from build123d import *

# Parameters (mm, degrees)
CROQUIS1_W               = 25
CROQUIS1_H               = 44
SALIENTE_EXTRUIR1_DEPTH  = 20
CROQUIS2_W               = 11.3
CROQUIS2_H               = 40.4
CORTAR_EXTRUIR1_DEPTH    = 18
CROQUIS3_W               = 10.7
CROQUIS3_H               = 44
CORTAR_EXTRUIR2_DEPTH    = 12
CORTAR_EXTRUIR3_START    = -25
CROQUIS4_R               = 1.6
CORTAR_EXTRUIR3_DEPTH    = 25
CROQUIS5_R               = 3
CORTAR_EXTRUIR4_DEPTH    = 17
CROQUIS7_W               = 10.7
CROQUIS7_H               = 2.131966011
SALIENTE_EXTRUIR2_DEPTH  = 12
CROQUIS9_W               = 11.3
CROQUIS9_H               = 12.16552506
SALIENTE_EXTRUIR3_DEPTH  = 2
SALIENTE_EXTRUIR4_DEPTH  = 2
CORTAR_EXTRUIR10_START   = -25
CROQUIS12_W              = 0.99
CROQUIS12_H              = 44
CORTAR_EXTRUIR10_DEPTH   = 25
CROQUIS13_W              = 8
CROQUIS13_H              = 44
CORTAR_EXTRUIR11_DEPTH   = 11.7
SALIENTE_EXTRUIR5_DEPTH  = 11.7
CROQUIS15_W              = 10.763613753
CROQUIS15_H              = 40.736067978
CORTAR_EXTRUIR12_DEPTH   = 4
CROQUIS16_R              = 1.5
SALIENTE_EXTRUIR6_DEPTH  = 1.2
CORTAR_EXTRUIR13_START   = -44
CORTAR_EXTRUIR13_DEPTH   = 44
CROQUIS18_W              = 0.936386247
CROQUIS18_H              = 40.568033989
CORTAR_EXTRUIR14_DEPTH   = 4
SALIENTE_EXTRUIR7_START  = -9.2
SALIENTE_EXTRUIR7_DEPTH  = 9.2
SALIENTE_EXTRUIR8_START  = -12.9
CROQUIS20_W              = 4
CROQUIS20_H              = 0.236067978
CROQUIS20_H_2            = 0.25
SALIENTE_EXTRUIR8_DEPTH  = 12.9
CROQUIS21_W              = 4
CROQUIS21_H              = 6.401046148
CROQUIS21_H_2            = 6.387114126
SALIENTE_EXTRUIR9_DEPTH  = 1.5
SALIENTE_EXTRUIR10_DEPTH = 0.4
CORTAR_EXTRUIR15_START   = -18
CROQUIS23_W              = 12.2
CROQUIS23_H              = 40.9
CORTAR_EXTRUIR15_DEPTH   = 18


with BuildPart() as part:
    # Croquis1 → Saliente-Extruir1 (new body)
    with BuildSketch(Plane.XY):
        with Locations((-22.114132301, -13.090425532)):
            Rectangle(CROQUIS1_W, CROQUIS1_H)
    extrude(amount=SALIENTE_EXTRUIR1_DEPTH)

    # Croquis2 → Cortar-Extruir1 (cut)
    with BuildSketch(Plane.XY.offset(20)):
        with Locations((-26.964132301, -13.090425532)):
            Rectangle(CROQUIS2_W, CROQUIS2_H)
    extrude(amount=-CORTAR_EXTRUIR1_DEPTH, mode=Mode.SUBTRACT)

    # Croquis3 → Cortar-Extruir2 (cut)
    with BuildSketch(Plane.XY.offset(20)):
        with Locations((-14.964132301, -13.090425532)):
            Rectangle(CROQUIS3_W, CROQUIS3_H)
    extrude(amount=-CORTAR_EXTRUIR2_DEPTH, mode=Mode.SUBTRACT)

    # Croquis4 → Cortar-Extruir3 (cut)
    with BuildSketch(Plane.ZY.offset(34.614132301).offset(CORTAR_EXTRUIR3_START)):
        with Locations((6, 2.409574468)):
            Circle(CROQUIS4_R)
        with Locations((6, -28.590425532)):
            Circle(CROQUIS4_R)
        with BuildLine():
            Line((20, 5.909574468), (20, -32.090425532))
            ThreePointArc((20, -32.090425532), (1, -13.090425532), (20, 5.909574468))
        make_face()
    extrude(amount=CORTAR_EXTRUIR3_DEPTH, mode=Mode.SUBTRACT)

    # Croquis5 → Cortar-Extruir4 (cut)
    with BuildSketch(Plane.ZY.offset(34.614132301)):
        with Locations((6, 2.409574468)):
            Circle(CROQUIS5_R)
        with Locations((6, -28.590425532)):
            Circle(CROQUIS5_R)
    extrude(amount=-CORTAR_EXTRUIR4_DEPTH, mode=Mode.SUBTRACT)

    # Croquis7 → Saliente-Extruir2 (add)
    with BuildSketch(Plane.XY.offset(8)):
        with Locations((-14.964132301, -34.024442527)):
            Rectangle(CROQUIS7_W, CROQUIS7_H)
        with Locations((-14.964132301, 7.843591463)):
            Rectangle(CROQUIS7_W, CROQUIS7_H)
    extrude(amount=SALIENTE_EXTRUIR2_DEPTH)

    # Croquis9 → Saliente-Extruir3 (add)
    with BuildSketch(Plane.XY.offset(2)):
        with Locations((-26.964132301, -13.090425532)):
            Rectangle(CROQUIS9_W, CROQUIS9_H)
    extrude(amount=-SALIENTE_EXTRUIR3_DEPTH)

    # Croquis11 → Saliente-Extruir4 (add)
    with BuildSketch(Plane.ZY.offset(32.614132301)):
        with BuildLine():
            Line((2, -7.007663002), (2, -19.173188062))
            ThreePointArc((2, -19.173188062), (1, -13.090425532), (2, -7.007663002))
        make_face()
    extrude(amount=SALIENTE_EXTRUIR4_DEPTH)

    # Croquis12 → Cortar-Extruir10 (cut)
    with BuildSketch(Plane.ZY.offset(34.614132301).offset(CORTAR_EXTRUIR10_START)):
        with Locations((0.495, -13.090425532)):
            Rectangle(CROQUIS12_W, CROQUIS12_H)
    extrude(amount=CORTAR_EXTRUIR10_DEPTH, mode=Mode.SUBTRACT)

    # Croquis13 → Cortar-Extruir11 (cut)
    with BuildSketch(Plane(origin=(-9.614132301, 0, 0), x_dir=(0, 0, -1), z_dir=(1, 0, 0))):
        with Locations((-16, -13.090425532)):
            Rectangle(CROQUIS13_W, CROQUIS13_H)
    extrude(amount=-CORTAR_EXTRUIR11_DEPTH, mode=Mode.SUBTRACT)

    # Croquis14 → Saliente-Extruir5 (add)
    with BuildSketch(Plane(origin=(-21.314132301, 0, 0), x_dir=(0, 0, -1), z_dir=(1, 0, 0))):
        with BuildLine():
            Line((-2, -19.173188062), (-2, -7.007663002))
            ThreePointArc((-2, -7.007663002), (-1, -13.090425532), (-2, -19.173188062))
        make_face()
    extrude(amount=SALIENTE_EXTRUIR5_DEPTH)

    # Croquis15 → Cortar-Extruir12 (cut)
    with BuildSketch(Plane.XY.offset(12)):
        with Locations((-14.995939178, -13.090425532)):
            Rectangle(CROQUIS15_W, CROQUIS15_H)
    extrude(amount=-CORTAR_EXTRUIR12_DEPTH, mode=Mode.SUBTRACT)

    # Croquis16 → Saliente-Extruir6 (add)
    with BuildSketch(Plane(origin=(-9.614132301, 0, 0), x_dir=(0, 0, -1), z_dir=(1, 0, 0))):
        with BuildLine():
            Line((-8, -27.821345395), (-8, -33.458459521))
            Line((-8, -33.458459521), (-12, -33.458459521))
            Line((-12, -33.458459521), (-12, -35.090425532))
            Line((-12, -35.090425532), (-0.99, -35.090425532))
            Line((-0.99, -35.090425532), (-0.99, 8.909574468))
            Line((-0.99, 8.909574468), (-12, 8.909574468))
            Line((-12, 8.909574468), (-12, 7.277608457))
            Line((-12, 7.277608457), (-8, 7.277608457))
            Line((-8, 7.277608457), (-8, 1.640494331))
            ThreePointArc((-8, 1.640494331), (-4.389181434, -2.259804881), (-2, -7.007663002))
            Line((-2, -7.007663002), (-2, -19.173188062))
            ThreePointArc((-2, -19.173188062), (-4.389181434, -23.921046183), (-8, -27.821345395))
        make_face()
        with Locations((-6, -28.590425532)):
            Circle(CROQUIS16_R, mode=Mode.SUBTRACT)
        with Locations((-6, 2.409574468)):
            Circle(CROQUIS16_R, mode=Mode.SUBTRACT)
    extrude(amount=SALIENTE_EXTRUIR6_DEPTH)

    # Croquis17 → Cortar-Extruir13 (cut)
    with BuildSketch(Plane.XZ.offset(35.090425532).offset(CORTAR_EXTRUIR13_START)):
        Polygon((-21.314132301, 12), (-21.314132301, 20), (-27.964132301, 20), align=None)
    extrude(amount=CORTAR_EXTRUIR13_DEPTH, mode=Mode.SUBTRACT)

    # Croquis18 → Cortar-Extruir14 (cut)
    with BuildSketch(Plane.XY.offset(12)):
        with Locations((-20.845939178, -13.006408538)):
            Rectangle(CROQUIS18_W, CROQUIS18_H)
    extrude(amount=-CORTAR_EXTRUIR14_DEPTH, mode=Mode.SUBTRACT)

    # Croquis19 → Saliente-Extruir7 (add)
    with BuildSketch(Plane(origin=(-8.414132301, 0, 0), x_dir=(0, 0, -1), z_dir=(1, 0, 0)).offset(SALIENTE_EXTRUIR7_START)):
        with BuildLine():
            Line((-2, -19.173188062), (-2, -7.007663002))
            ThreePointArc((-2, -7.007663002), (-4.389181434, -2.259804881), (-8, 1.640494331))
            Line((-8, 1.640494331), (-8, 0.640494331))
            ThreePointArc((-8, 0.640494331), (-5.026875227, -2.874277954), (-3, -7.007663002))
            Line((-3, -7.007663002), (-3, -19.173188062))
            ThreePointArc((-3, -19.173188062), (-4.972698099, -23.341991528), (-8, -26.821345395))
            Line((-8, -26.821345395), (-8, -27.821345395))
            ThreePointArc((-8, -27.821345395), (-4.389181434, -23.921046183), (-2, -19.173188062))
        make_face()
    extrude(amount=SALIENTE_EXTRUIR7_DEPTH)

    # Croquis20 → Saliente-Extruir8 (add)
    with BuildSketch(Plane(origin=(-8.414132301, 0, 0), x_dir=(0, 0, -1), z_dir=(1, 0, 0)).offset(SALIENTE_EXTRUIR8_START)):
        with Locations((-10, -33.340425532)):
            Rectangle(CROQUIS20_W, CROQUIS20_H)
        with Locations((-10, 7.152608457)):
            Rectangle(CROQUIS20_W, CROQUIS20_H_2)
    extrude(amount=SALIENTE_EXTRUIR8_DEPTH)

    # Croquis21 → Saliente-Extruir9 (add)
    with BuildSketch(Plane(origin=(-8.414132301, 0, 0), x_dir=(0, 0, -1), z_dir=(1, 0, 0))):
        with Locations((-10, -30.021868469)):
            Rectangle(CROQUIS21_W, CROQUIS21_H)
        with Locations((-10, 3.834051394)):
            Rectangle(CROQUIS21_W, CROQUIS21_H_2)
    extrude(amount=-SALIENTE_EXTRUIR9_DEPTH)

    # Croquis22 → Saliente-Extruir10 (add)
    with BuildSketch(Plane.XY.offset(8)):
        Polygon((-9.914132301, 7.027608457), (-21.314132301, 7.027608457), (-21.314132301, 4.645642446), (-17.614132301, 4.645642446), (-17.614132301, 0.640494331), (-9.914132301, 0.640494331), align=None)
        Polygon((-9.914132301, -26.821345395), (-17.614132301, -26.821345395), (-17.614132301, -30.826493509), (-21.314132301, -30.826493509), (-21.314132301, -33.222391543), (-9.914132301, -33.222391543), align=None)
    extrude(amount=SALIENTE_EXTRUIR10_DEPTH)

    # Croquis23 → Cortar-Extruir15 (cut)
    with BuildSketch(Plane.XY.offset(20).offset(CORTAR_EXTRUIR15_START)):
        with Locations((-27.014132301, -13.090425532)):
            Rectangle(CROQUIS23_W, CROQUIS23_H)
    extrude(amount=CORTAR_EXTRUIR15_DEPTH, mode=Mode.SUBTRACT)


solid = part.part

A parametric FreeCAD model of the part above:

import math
import FreeCAD as App
import Part
import Sketcher
Q = App.Units.Quantity

doc = App.newDocument("Part")
body = doc.addObject("PartDesign::Body", "Body")

sketch1 = doc.addObject("Sketcher::SketchObject", "Sketch")
body.addObject(sketch1)
sketch1.AttachmentSupport = (doc.XY_Plane, [""])
sketch1.MapMode = "FlatFace"
sketch1.addGeometry(Part.LineSegment(App.Vector(-34.614132, 8.909574, 0), App.Vector(-34.614132, -35.090426, 0)), False)
sketch1.addGeometry(Part.LineSegment(App.Vector(-34.614132, -35.090426, 0), App.Vector(-9.614132, -35.090426, 0)), False)
sketch1.addGeometry(Part.LineSegment(App.Vector(-9.614132, -35.090426, 0), App.Vector(-9.614132, 8.909574, 0)), False)
sketch1.addGeometry(Part.LineSegment(App.Vector(-9.614132, 8.909574, 0), App.Vector(-34.614132, 8.909574, 0)), False)
sketch1.addConstraint(Sketcher.Constraint("Coincident", 0, 2, 1, 1))
sketch1.addConstraint(Sketcher.Constraint("Coincident", 1, 2, 2, 1))
sketch1.addConstraint(Sketcher.Constraint("Coincident", 2, 2, 3, 1))
sketch1.addConstraint(Sketcher.Constraint("Coincident", 3, 2, 0, 1))
sketch1.addConstraint(Sketcher.Constraint("Vertical", 0))
sketch1.addConstraint(Sketcher.Constraint("Horizontal", 1))
sketch1.addConstraint(Sketcher.Constraint("Vertical", 2))
sketch1.addConstraint(Sketcher.Constraint("Horizontal", 3))
sketch1.addConstraint(Sketcher.Constraint("DistanceX", 1, 1, 1, 2, Q("25 mm")))
sketch1.addConstraint(Sketcher.Constraint("DistanceY", 0, 2, 0, 1, Q("44 mm")))
sketch1.addConstraint(Sketcher.Constraint("DistanceX", 0, 2, -1, 1, Q("34.614132 mm")))
sketch1.addConstraint(Sketcher.Constraint("DistanceY", 0, 2, -1, 1, Q("35.090426 mm")))
pad1 = doc.addObject("PartDesign::Pad", "Pad")
body.addObject(pad1)
pad1.Profile = sketch1
pad1.Length = 20

sketch2 = doc.addObject("Sketcher::SketchObject", "Sketch001")
body.addObject(sketch2)
sketch2.AttachmentSupport = (doc.XY_Plane, [""])
sketch2.MapMode = "FlatFace"
sketch2.AttachmentOffset = App.Placement(App.Vector(0, 0, 20), App.Rotation())
sketch2.addGeometry(Part.LineSegment(App.Vector(-32.614132, 7.109574, 0), App.Vector(-32.614132, -33.290426, 0)), False)
sketch2.addGeometry(Part.LineSegment(App.Vector(-32.614132, -33.290426, 0), App.Vector(-21.314132, -33.290426, 0)), False)
sketch2.addGeometry(Part.LineSegment(App.Vector(-21.314132, -33.290426, 0), App.Vector(-21.314132, 7.109574, 0)), False)
sketch2.addGeometry(Part.LineSegment(App.Vector(-21.314132, 7.109574, 0), App.Vector(-32.614132, 7.109574, 0)), False)
sketch2.addConstraint(Sketcher.Constraint("Coincident", 0, 2, 1, 1))
sketch2.addConstraint(Sketcher.Constraint("Coincident", 1, 2, 2, 1))
sketch2.addConstraint(Sketcher.Constraint("Coincident", 2, 2, 3, 1))
sketch2.addConstraint(Sketcher.Constraint("Coincident", 3, 2, 0, 1))
sketch2.addConstraint(Sketcher.Constraint("Vertical", 0))
sketch2.addConstraint(Sketcher.Constraint("Horizontal", 1))
sketch2.addConstraint(Sketcher.Constraint("Vertical", 2))
sketch2.addConstraint(Sketcher.Constraint("Horizontal", 3))
sketch2.addConstraint(Sketcher.Constraint("DistanceX", 1, 1, 1, 2, Q("11.3 mm")))
sketch2.addConstraint(Sketcher.Constraint("DistanceY", 0, 2, 0, 1, Q("40.4 mm")))
sketch2.addConstraint(Sketcher.Constraint("DistanceX", 0, 2, -1, 1, Q("32.614132 mm")))
sketch2.addConstraint(Sketcher.Constraint("DistanceY", 0, 2, -1, 1, Q("33.290426 mm")))
pocket1 = doc.addObject("PartDesign::Pocket", "Pocket")
body.addObject(pocket1)
pocket1.Profile = sketch2
pocket1.Length = 18

sketch3 = doc.addObject("Sketcher::SketchObject", "Sketch002")
body.addObject(sketch3)
sketch3.AttachmentSupport = (doc.XY_Plane, [""])
sketch3.MapMode = "FlatFace"
sketch3.AttachmentOffset = App.Placement(App.Vector(0, 0, 20), App.Rotation())
sketch3.addGeometry(Part.LineSegment(App.Vector(-20.314132, 8.909574, 0), App.Vector(-20.314132, -35.090426, 0)), False)
sketch3.addGeometry(Part.LineSegment(App.Vector(-20.314132, -35.090426, 0), App.Vector(-9.614132, -35.090426, 0)), False)
sketch3.addGeometry(Part.LineSegment(App.Vector(-9.614132, -35.090426, 0), App.Vector(-9.614132, 8.909574, 0)), False)
sketch3.addGeometry(Part.LineSegment(App.Vector(-9.614132, 8.909574, 0), App.Vector(-20.314132, 8.909574, 0)), False)
sketch3.addConstraint(Sketcher.Constraint("Coincident", 0, 2, 1, 1))
sketch3.addConstraint(Sketcher.Constraint("Coincident", 1, 2, 2, 1))
sketch3.addConstraint(Sketcher.Constraint("Coincident", 2, 2, 3, 1))
sketch3.addConstraint(Sketcher.Constraint("Coincident", 3, 2, 0, 1))
sketch3.addConstraint(Sketcher.Constraint("Vertical", 0))
sketch3.addConstraint(Sketcher.Constraint("Horizontal", 1))
sketch3.addConstraint(Sketcher.Constraint("Vertical", 2))
sketch3.addConstraint(Sketcher.Constraint("Horizontal", 3))
sketch3.addConstraint(Sketcher.Constraint("DistanceY", 0, 2, 0, 1, Q("44 mm")))
sketch3.addConstraint(Sketcher.Constraint("DistanceX", 1, 1, 1, 2, Q("10.7 mm")))
sketch3.addConstraint(Sketcher.Constraint("DistanceX", 0, 2, -1, 1, Q("20.314132 mm")))
sketch3.addConstraint(Sketcher.Constraint("DistanceY", 0, 2, -1, 1, Q("35.090426 mm")))
pocket2 = doc.addObject("PartDesign::Pocket", "Pocket001")
body.addObject(pocket2)
pocket2.Profile = sketch3
pocket2.Length = 12

sketch4 = doc.addObject("Sketcher::SketchObject", "Sketch003")
body.addObject(sketch4)
sketch4.AttachmentSupport = (doc.YZ_Plane, [""])
sketch4.MapMode = "FlatFace"
sketch4.AttachmentOffset = App.Placement(App.Vector(0, 0, -9.614132), App.Rotation())
sketch4.addGeometry(Part.Circle(App.Vector(2.409574, 6, 0), App.Vector(0, 0, 1), 1.6), False)
sketch4.addGeometry(Part.Circle(App.Vector(-28.590426, 6, 0), App.Vector(0, 0, 1), 1.6), False)
sketch4.addGeometry(Part.LineSegment(App.Vector(-32.090426, 20, 0), App.Vector(5.909574, 20, 0)), False)
sketch4.addGeometry(Part.ArcOfCircle(Part.Circle(App.Vector(-13.090426, 20, 0), App.Vector(0, 0, 1), 19), math.radians(180), math.radians(360)), False)
sketch4.addConstraint(Sketcher.Constraint("Coincident", 2, 1, 3, 1))
sketch4.addConstraint(Sketcher.Constraint("Coincident", 3, 2, 2, 2))
sketch4.addConstraint(Sketcher.Constraint("Horizontal", 2))
sketch4.addConstraint(Sketcher.Constraint("Equal", 0, 1))
sketch4.addConstraint(Sketcher.Constraint("Horizontal", 0, 3, 1, 3))
sketch4.addConstraint(Sketcher.Constraint("Horizontal", 3, 3, 2, 1))
sketch4.addConstraint(Sketcher.Constraint("Radius", 3, Q("19 mm")))
sketch4.addConstraint(Sketcher.Constraint("Diameter", 0, Q("3.2 mm")))
sketch4.addConstraint(Sketcher.Constraint("DistanceY", -1, 1, 0, 3, Q("6 mm")))
sketch4.addConstraint(Sketcher.Constraint("DistanceY", -1, 1, 3, 3, Q("20 mm")))
sketch4.addConstraint(Sketcher.Constraint("DistanceX", 1, 3, 0, 3, Q("31 mm")))
sketch4.addConstraint(Sketcher.Constraint("DistanceX", 3, 3, 0, 3, Q("15.5 mm")))
sketch4.addConstraint(Sketcher.Constraint("DistanceX", -1, 1, 0, 3, Q("2.409574 mm")))
pocket3 = doc.addObject("PartDesign::Pocket", "Pocket002")
body.addObject(pocket3)
pocket3.Profile = sketch4
pocket3.Length = 25

sketch5 = doc.addObject("Sketcher::SketchObject", "Sketch004")
body.addObject(sketch5)
sketch5.AttachmentSupport = (doc.YZ_Plane, [""])
sketch5.MapMode = "FlatFace"
sketch5.AttachmentOffset = App.Placement(App.Vector(0, 0, -34.614132), App.Rotation())
sketch5.addGeometry(Part.Circle(App.Vector(2.409574, 6, 0), App.Vector(0, 0, 1), 3), False)
sketch5.addGeometry(Part.Circle(App.Vector(-28.590426, 6, 0), App.Vector(0, 0, 1), 3), False)
sketch5.addConstraint(Sketcher.Constraint("Equal", 0, 1))
sketch5.addConstraint(Sketcher.Constraint("Horizontal", 0, 3, 1, 3))
sketch5.addConstraint(Sketcher.Constraint("Diameter", 0, Q("6 mm")))
sketch5.addConstraint(Sketcher.Constraint("DistanceY", -1, 1, 0, 3, Q("6 mm")))
sketch5.addConstraint(Sketcher.Constraint("DistanceX", 1, 3, 0, 3, Q("31 mm")))
sketch5.addConstraint(Sketcher.Constraint("DistanceX", -1, 1, 0, 3, Q("2.409574 mm")))
pocket4 = doc.addObject("PartDesign::Pocket", "Pocket003")
body.addObject(pocket4)
pocket4.Profile = sketch5
pocket4.Length = 17
pocket4.Reversed = True

sketch6 = doc.addObject("Sketcher::SketchObject", "Sketch005")
body.addObject(sketch6)
sketch6.AttachmentSupport = (doc.XY_Plane, [""])
sketch6.MapMode = "FlatFace"
sketch6.AttachmentOffset = App.Placement(App.Vector(0, 0, 8), App.Rotation())
sketch6.addGeometry(Part.LineSegment(App.Vector(-20.314132, -32.95846, 0), App.Vector(-20.314132, -35.090426, 0)), False)
sketch6.addGeometry(Part.LineSegment(App.Vector(-20.314132, -35.090426, 0), App.Vector(-9.614132, -35.090426, 0)), False)
sketch6.addGeometry(Part.LineSegment(App.Vector(-9.614132, -35.090426, 0), App.Vector(-9.614132, -32.95846, 0)), False)
sketch6.addGeometry(Part.LineSegment(App.Vector(-9.614132, -32.95846, 0), App.Vector(-20.314132, -32.95846, 0)), False)
sketch6.addGeometry(Part.LineSegment(App.Vector(-20.314132, 8.909574, 0), App.Vector(-20.314132, 6.777608, 0)), False)
sketch6.addGeometry(Part.LineSegment(App.Vector(-20.314132, 6.777608, 0), App.Vector(-9.614132, 6.777608, 0)), False)
sketch6.addGeometry(Part.LineSegment(App.Vector(-9.614132, 6.777608, 0), App.Vector(-9.614132, 8.909574, 0)), False)
sketch6.addGeometry(Part.LineSegment(App.Vector(-9.614132, 8.909574, 0), App.Vector(-20.314132, 8.909574, 0)), False)
sketch6.addConstraint(Sketcher.Constraint("Coincident", 0, 2, 1, 1))
sketch6.addConstraint(Sketcher.Constraint("Coincident", 1, 2, 2, 1))
sketch6.addConstraint(Sketcher.Constraint("Coincident", 2, 2, 3, 1))
sketch6.addConstraint(Sketcher.Constraint("Coincident", 3, 2, 0, 1))
sketch6.addConstraint(Sketcher.Constraint("Coincident", 4, 2, 5, 1))
sketch6.addConstraint(Sketcher.Constraint("Coincident", 5, 2, 6, 1))
sketch6.addConstraint(Sketcher.Constraint("Coincident", 6, 2, 7, 1))
sketch6.addConstraint(Sketcher.Constraint("Coincident", 7, 2, 4, 1))
sketch6.addConstraint(Sketcher.Constraint("Vertical", 0))
sketch6.addConstraint(Sketcher.Constraint("Horizontal", 1))
sketch6.addConstraint(Sketcher.Constraint("Vertical", 2))
sketch6.addConstraint(Sketcher.Constraint("Horizontal", 3))
sketch6.addConstraint(Sketcher.Constraint("Vertical", 4))
sketch6.addConstraint(Sketcher.Constraint("Horizontal", 5))
sketch6.addConstraint(Sketcher.Constraint("Vertical", 6))
sketch6.addConstraint(Sketcher.Constraint("Horizontal", 7))
sketch6.addConstraint(Sketcher.Constraint("Vertical", 3, 2, 4, 2))
sketch6.addConstraint(Sketcher.Constraint("Vertical", 2, 2, 5, 2))
sketch6.addConstraint(Sketcher.Constraint("Equal", 2, 4))
sketch6.addConstraint(Sketcher.Constraint("DistanceX", 1, 1, 1, 2, Q("10.7 mm")))
sketch6.addConstraint(Sketcher.Constraint("DistanceY", 1, 2, 6, 2, Q("44 mm")))
sketch6.addConstraint(Sketcher.Constraint("DistanceY", 0, 2, 0, 1, Q("2.131966 mm")))
sketch6.addConstraint(Sketcher.Constraint("DistanceY", 2, 2, -1, 1, Q("32.95846 mm")))
sketch6.addConstraint(Sketcher.Constraint("DistanceX", 0, 2, -1, 1, Q("20.314132 mm")))
pad2 = doc.addObject("PartDesign::Pad", "Pad001")
body.addObject(pad2)
pad2.Profile = sketch6
pad2.Length = 12

sketch7 = doc.addObject("Sketcher::SketchObject", "Sketch006")
body.addObject(sketch7)
sketch7.AttachmentSupport = (doc.XY_Plane, [""])
sketch7.MapMode = "FlatFace"
sketch7.AttachmentOffset = App.Placement(App.Vector(0, 0, 2), App.Rotation())
sketch7.addGeometry(Part.LineSegment(App.Vector(-32.614132, -7.007663, 0), App.Vector(-32.614132, -19.173188, 0)), False)
sketch7.addGeometry(Part.LineSegment(App.Vector(-32.614132, -19.173188, 0), App.Vector(-21.314132, -19.173188, 0)), False)
sketch7.addGeometry(Part.LineSegment(App.Vector(-21.314132, -19.173188, 0), App.Vector(-21.314132, -7.007663, 0)), False)
sketch7.addGeometry(Part.LineSegment(App.Vector(-21.314132, -7.007663, 0), App.Vector(-32.614132, -7.007663, 0)), False)
sketch7.addConstraint(Sketcher.Constraint("Coincident", 0, 2, 1, 1))
sketch7.addConstraint(Sketcher.Constraint("Coincident", 1, 2, 2, 1))
sketch7.addConstraint(Sketcher.Constraint("Coincident", 2, 2, 3, 1))
sketch7.addConstraint(Sketcher.Constraint("Coincident", 3, 2, 0, 1))
sketch7.addConstraint(Sketcher.Constraint("Vertical", 0))
sketch7.addConstraint(Sketcher.Constraint("Horizontal", 1))
sketch7.addConstraint(Sketcher.Constraint("Vertical", 2))
sketch7.addConstraint(Sketcher.Constraint("Horizontal", 3))
sketch7.addConstraint(Sketcher.Constraint("DistanceX", 1, 1, 1, 2, Q("11.3 mm")))
sketch7.addConstraint(Sketcher.Constraint("DistanceY", 0, 2, 0, 1, Q("12.165525 mm")))
sketch7.addConstraint(Sketcher.Constraint("DistanceY", 0, 2, -1, 1, Q("19.173188 mm")))
sketch7.addConstraint(Sketcher.Constraint("DistanceX", 0, 2, -1, 1, Q("32.614132 mm")))
pad3 = doc.addObject("PartDesign::Pad", "Pad002")
body.addObject(pad3)
pad3.Profile = sketch7
pad3.Length = 2
pad3.Reversed = True

sketch8 = doc.addObject("Sketcher::SketchObject", "Sketch007")
body.addObject(sketch8)
sketch8.AttachmentSupport = (doc.YZ_Plane, [""])
sketch8.MapMode = "FlatFace"
sketch8.AttachmentOffset = App.Placement(App.Vector(0, 0, -32.614132), App.Rotation())
sketch8.addGeometry(Part.LineSegment(App.Vector(-19.173188, 2, 0), App.Vector(-7.007663, 2, 0)), False)
sketch8.addGeometry(Part.ArcOfCircle(Part.Circle(App.Vector(-13.090426, 20, 0), App.Vector(0, 0, 1), 19), math.radians(-108.671718), math.radians(-71.328282)), False)
sketch8.addConstraint(Sketcher.Constraint("Coincident", 0, 1, 1, 1))
sketch8.addConstraint(Sketcher.Constraint("Coincident", 1, 2, 0, 2))
sketch8.addConstraint(Sketcher.Constraint("Horizontal", 0))
sketch8.addConstraint(Sketcher.Constraint("Radius", 1, Q("19 mm")))
sketch8.addConstraint(Sketcher.Constraint("DistanceY", -1, 1, 1, 3, Q("20 mm")))
sketch8.addConstraint(Sketcher.Constraint("DistanceY", -1, 1, 0, 1, Q("2 mm")))
sketch8.addConstraint(Sketcher.Constraint("DistanceX", 0, 1, -1, 1, Q("19.173188 mm")))
pad4 = doc.addObject("PartDesign::Pad", "Pad003")
body.addObject(pad4)
pad4.Profile = sketch8
pad4.Length = 2
pad4.Reversed = True

sketch9 = doc.addObject("Sketcher::SketchObject", "Sketch008")
body.addObject(sketch9)
sketch9.AttachmentSupport = (doc.YZ_Plane, [""])
sketch9.MapMode = "FlatFace"
sketch9.AttachmentOffset = App.Placement(App.Vector(0, 0, -9.614132), App.Rotation())
sketch9.addGeometry(Part.LineSegment(App.Vector(8.909574, 0, 0), App.Vector(-35.090426, 0, 0)), False)
sketch9.addGeometry(Part.LineSegment(App.Vector(-35.090426, 0, 0), App.Vector(-35.090426, 0.99, 0)), False)
sketch9.addGeometry(Part.LineSegment(App.Vector(-35.090426, 0.99, 0), App.Vector(8.909574, 0.99, 0)), False)
sketch9.addGeometry(Part.LineSegment(App.Vector(8.909574, 0.99, 0), App.Vector(8.909574, 0, 0)), False)
sketch9.addConstraint(Sketcher.Constraint("Coincident", 0, 2, 1, 1))
sketch9.addConstraint(Sketcher.Constraint("Coincident", 1, 2, 2, 1))
sketch9.addConstraint(Sketcher.Constraint("Coincident", 2, 2, 3, 1))
sketch9.addConstraint(Sketcher.Constraint("Coincident", 3, 2, 0, 1))
sketch9.addConstraint(Sketcher.Constraint("Horizontal", 0))
sketch9.addConstraint(Sketcher.Constraint("Vertical", 1))
sketch9.addConstraint(Sketcher.Constraint("Horizontal", 2))
sketch9.addConstraint(Sketcher.Constraint("Vertical", 3))
sketch9.addConstraint(Sketcher.Constraint("PointOnObject", 0, 2, -1))
sketch9.addConstraint(Sketcher.Constraint("DistanceX", 0, 2, 0, 1, Q("44 mm")))
sketch9.addConstraint(Sketcher.Constraint("DistanceY", 1, 1, 1, 2, Q("0.99 mm")))
sketch9.addConstraint(Sketcher.Constraint("DistanceX", 0, 2, -1, 1, Q("35.090426 mm")))
pocket5 = doc.addObject("PartDesign::Pocket", "Pocket004")
body.addObject(pocket5)
pocket5.Profile = sketch9
pocket5.Length = 25

sketch10 = doc.addObject("Sketcher::SketchObject", "Sketch009")
body.addObject(sketch10)
sketch10.AttachmentSupport = (doc.YZ_Plane, [""])
sketch10.MapMode = "FlatFace"
sketch10.AttachmentOffset = App.Placement(App.Vector(0, 0, -9.614132), App.Rotation())
sketch10.addGeometry(Part.LineSegment(App.Vector(8.909574, 20, 0), App.Vector(-35.090426, 20, 0)), False)
sketch10.addGeometry(Part.LineSegment(App.Vector(-35.090426, 20, 0), App.Vector(-35.090426, 12, 0)), False)
sketch10.addGeometry(Part.LineSegment(App.Vector(-35.090426, 12, 0), App.Vector(8.909574, 12, 0)), False)
sketch10.addGeometry(Part.LineSegment(App.Vector(8.909574, 12, 0), App.Vector(8.909574, 20, 0)), False)
sketch10.addConstraint(Sketcher.Constraint("Coincident", 0, 2, 1, 1))
sketch10.addConstraint(Sketcher.Constraint("Coincident", 1, 2, 2, 1))
sketch10.addConstraint(Sketcher.Constraint("Coincident", 2, 2, 3, 1))
sketch10.addConstraint(Sketcher.Constraint("Coincident", 3, 2, 0, 1))
sketch10.addConstraint(Sketcher.Constraint("Horizontal", 0))
sketch10.addConstraint(Sketcher.Constraint("Vertical", 1))
sketch10.addConstraint(Sketcher.Constraint("Horizontal", 2))
sketch10.addConstraint(Sketcher.Constraint("Vertical", 3))
sketch10.addConstraint(Sketcher.Constraint("DistanceX", 0, 2, 0, 1, Q("44 mm")))
sketch10.addConstraint(Sketcher.Constraint("DistanceY", 1, 2, 1, 1, Q("8 mm")))
sketch10.addConstraint(Sketcher.Constraint("DistanceY", -1, 1, 0, 2, Q("20 mm")))
sketch10.addConstraint(Sketcher.Constraint("DistanceX", 0, 2, -1, 1, Q("35.090426 mm")))
pocket6 = doc.addObject("PartDesign::Pocket", "Pocket005")
body.addObject(pocket6)
pocket6.Profile = sketch10
pocket6.Length = 11.7

sketch11 = doc.addObject("Sketcher::SketchObject", "Sketch010")
body.addObject(sketch11)
sketch11.AttachmentSupport = (doc.YZ_Plane, [""])
sketch11.MapMode = "FlatFace"
sketch11.AttachmentOffset = App.Placement(App.Vector(0, 0, -21.314132), App.Rotation())
sketch11.addGeometry(Part.LineSegment(App.Vector(-7.007663, 2, 0), App.Vector(-19.173188, 2, 0)), False)
sketch11.addGeometry(Part.ArcOfCircle(Part.Circle(App.Vector(-13.090426, 20, 0), App.Vector(0, 0, 1), 19), math.radians(-108.671718), math.radians(-71.328282)), False)
sketch11.addConstraint(Sketcher.Constraint("Coincident", 0, 1, 1, 2))
sketch11.addConstraint(Sketcher.Constraint("Coincident", 1, 1, 0, 2))
sketch11.addConstraint(Sketcher.Constraint("Horizontal", 0))
sketch11.addConstraint(Sketcher.Constraint("Radius", 1, Q("19 mm")))
sketch11.addConstraint(Sketcher.Constraint("DistanceY", -1, 1, 1, 3, Q("20 mm")))
sketch11.addConstraint(Sketcher.Constraint("DistanceY", -1, 1, 0, 1, Q("2 mm")))
sketch11.addConstraint(Sketcher.Constraint("DistanceX", 1, 1, -1, 1, Q("19.173188 mm")))
pad5 = doc.addObject("PartDesign::Pad", "Pad004")
body.addObject(pad5)
pad5.Profile = sketch11
pad5.Length = 11.7

sketch12 = doc.addObject("Sketcher::SketchObject", "Sketch011")
body.addObject(sketch12)
sketch12.AttachmentSupport = (doc.XY_Plane, [""])
sketch12.MapMode = "FlatFace"
sketch12.AttachmentOffset = App.Placement(App.Vector(0, 0, 12), App.Rotation())
sketch12.addGeometry(Part.LineSegment(App.Vector(-20.377746, 7.277608, 0), App.Vector(-20.377746, -33.45846, 0)), False)
sketch12.addGeometry(Part.LineSegment(App.Vector(-20.377746, -33.45846, 0), App.Vector(-9.614132, -33.45846, 0)), False)
sketch12.addGeometry(Part.LineSegment(App.Vector(-9.614132, -33.45846, 0), App.Vector(-9.614132, 7.277608, 0)), False)
sketch12.addGeometry(Part.LineSegment(App.Vector(-9.614132, 7.277608, 0), App.Vector(-20.377746, 7.277608, 0)), False)
sketch12.addConstraint(Sketcher.Constraint("Coincident", 0, 2, 1, 1))
sketch12.addConstraint(Sketcher.Constraint("Coincident", 1, 2, 2, 1))
sketch12.addConstraint(Sketcher.Constraint("Coincident", 2, 2, 3, 1))
sketch12.addConstraint(Sketcher.Constraint("Coincident", 3, 2, 0, 1))
sketch12.addConstraint(Sketcher.Constraint("Vertical", 0))
sketch12.addConstraint(Sketcher.Constraint("Horizontal", 1))
sketch12.addConstraint(Sketcher.Constraint("Vertical", 2))
sketch12.addConstraint(Sketcher.Constraint("Horizontal", 3))
sketch12.addConstraint(Sketcher.Constraint("DistanceX", 1, 1, 1, 2, Q("10.763614 mm")))
sketch12.addConstraint(Sketcher.Constraint("DistanceY", 0, 2, 0, 1, Q("40.736068 mm")))
sketch12.addConstraint(Sketcher.Constraint("DistanceY", 0, 2, -1, 1, Q("33.45846 mm")))
sketch12.addConstraint(Sketcher.Constraint("DistanceX", 0, 2, -1, 1, Q("20.377746 mm")))
pocket7 = doc.addObject("PartDesign::Pocket", "Pocket006")
body.addObject(pocket7)
pocket7.Profile = sketch12
pocket7.Length = 4

sketch13 = doc.addObject("Sketcher::SketchObject", "Sketch012")
body.addObject(sketch13)
sketch13.AttachmentSupport = (doc.YZ_Plane, [""])
sketch13.MapMode = "FlatFace"
sketch13.AttachmentOffset = App.Placement(App.Vector(0, 0, -9.614132), App.Rotation())
sketch13.addGeometry(Part.LineSegment(App.Vector(-27.821345, 8, 0), App.Vector(-33.45846, 8, 0)), False)
sketch13.addGeometry(Part.LineSegment(App.Vector(-33.45846, 8, 0), App.Vector(-33.45846, 12, 0)), False)
sketch13.addGeometry(Part.LineSegment(App.Vector(-33.45846, 12, 0), App.Vector(-35.090426, 12, 0)), False)
sketch13.addGeometry(Part.LineSegment(App.Vector(-35.090426, 12, 0), App.Vector(-35.090426, 0.99, 0)), False)
sketch13.addGeometry(Part.LineSegment(App.Vector(-35.090426, 0.99, 0), App.Vector(8.909574, 0.99, 0)), False)
sketch13.addGeometry(Part.LineSegment(App.Vector(8.909574, 0.99, 0), App.Vector(8.909574, 12, 0)), False)
sketch13.addGeometry(Part.LineSegment(App.Vector(8.909574, 12, 0), App.Vector(7.277608, 12, 0)), False)
sketch13.addGeometry(Part.LineSegment(App.Vector(7.277608, 12, 0), App.Vector(7.277608, 8, 0)), False)
sketch13.addGeometry(Part.LineSegment(App.Vector(7.277608, 8, 0), App.Vector(1.640494, 8, 0)), False)
sketch13.addGeometry(Part.ArcOfCircle(Part.Circle(App.Vector(-13.090426, 20, 0), App.Vector(0, 0, 1), 19), math.radians(-71.328282), math.radians(-39.166711)), False)
sketch13.addGeometry(Part.LineSegment(App.Vector(-7.007663, 2, 0), App.Vector(-19.173188, 2, 0)), False)
sketch13.addGeometry(Part.ArcOfCircle(Part.Circle(App.Vector(-13.090426, 20, 0), App.Vector(0, 0, 1), 19), math.radians(-140.833289), math.radians(-108.671718)), False)
sketch13.addGeometry(Part.Circle(App.Vector(-28.590426, 6, 0), App.Vector(0, 0, 1), 1.5), False)
sketch13.addGeometry(Part.Circle(App.Vector(2.409574, 6, 0), App.Vector(0, 0, 1), 1.5), False)
sketch13.addConstraint(Sketcher.Constraint("Coincident", 0, 2, 1, 1))
sketch13.addConstraint(Sketcher.Constraint("Coincident", 1, 2, 2, 1))
sketch13.addConstraint(Sketcher.Constraint("Coincident", 2, 2, 3, 1))
sketch13.addConstraint(Sketcher.Constraint("Coincident", 3, 2, 4, 1))
sketch13.addConstraint(Sketcher.Constraint("Coincident", 4, 2, 5, 1))
sketch13.addConstraint(Sketcher.Constraint("Coincident", 5, 2, 6, 1))
sketch13.addConstraint(Sketcher.Constraint("Coincident", 6, 2, 7, 1))
sketch13.addConstraint(Sketcher.Constraint("Coincident", 7, 2, 8, 1))
sketch13.addConstraint(Sketcher.Constraint("Coincident", 8, 2, 9, 2))
sketch13.addConstraint(Sketcher.Constraint("Coincident", 9, 1, 10, 1))
sketch13.addConstraint(Sketcher.Constraint("Coincident", 10, 2, 11, 2))
sketch13.addConstraint(Sketcher.Constraint("Coincident", 11, 1, 0, 1))
sketch13.addConstraint(Sketcher.Constraint("Horizontal", 0))
sketch13.addConstraint(Sketcher.Constraint("Vertical", 1))
sketch13.addConstraint(Sketcher.Constraint("Horizontal", 2))
sketch13.addConstraint(Sketcher.Constraint("Vertical", 3))
sketch13.addConstraint(Sketcher.Constraint("Horizontal", 4))
sketch13.addConstraint(Sketcher.Constraint("Vertical", 5))
sketch13.addConstraint(Sketcher.Constraint("Horizontal", 6))
sketch13.addConstraint(Sketcher.Constraint("Vertical", 7))
sketch13.addConstraint(Sketcher.Constraint("Horizontal", 8))
sketch13.addConstraint(Sketcher.Constraint("Horizontal", 10))
sketch13.addConstraint(Sketcher.Constraint("Coincident", 11, 3, 9, 3))
sketch13.addConstraint(Sketcher.Constraint("Equal", 9, 11))
sketch13.addConstraint(Sketcher.Constraint("Equal", 12, 13))
sketch13.addConstraint(Sketcher.Constraint("Horizontal", 12, 3, 13, 3))
sketch13.addConstraint(Sketcher.Constraint("Horizontal", 2, 2, 5, 2))
sketch13.addConstraint(Sketcher.Constraint("Horizontal", 0, 2, 7, 2))
sketch13.addConstraint(Sketcher.Constraint("Equal", 2, 6))
sketch13.addConstraint(Sketcher.Constraint("Equal", 0, 8))
sketch13.addConstraint(Sketcher.Constraint("Diameter", 12, Q("3 mm")))
sketch13.addConstraint(Sketcher.Constraint("Radius", 9, Q("19 mm")))
sketch13.addConstraint(Sketcher.Constraint("DistanceX", 4, 1, 4, 2, Q("44 mm")))
sketch13.addConstraint(Sketcher.Constraint("DistanceY", 1, 1, 1, 2, Q("4 mm")))
sketch13.addConstraint(Sketcher.Constraint("DistanceY", -1, 1, 9, 3, Q("20 mm")))
sketch13.addConstraint(Sketcher.Constraint("DistanceY", -1, 1, 12, 3, Q("6 mm")))
sketch13.addConstraint(Sketcher.Constraint("DistanceY", -1, 1, 0, 2, Q("8 mm")))
sketch13.addConstraint(Sketcher.Constraint("DistanceY", -1, 1, 9, 1, Q("2 mm")))
sketch13.addConstraint(Sketcher.Constraint("DistanceX", 12, 3, 13, 3, Q("31 mm")))
sketch13.addConstraint(Sketcher.Constraint("DistanceY", 3, 2, 3, 1, Q("11.01 mm")))
sketch13.addConstraint(Sketcher.Constraint("DistanceX", 12, 3, 9, 3, Q("15.5 mm")))
sketch13.addConstraint(Sketcher.Constraint("DistanceX", 0, 2, 0, 1, Q("5.637114 mm")))
sketch13.addConstraint(Sketcher.Constraint("DistanceX", 0, 2, -1, 1, Q("33.45846 mm")))
pad6 = doc.addObject("PartDesign::Pad", "Pad005")
body.addObject(pad6)
pad6.Profile = sketch13
pad6.Length = 1.2

sketch14 = doc.addObject("Sketcher::SketchObject", "Sketch013")
body.addObject(sketch14)
sketch14.AttachmentSupport = (doc.XZ_Plane, [""])
sketch14.MapMode = "FlatFace"
sketch14.AttachmentOffset = App.Placement(App.Vector(0, 0, -8.909574), App.Rotation())
sketch14.addGeometry(Part.LineSegment(App.Vector(-21.314132, 12, 0), App.Vector(-21.314132, 20, 0)), False)
sketch14.addGeometry(Part.LineSegment(App.Vector(-21.314132, 20, 0), App.Vector(-27.964132, 20, 0)), False)
sketch14.addGeometry(Part.LineSegment(App.Vector(-27.964132, 20, 0), App.Vector(-21.314132, 12, 0)), False)
sketch14.addConstraint(Sketcher.Constraint("Coincident", 0, 2, 1, 1))
sketch14.addConstraint(Sketcher.Constraint("Coincident", 1, 2, 2, 1))
sketch14.addConstraint(Sketcher.Constraint("Coincident", 2, 2, 0, 1))
sketch14.addConstraint(Sketcher.Constraint("Vertical", 0))
sketch14.addConstraint(Sketcher.Constraint("Horizontal", 1))
sketch14.addConstraint(Sketcher.Constraint("DistanceY", 0, 1, 0, 2, Q("8 mm")))
sketch14.addConstraint(Sketcher.Constraint("DistanceY", -1, 1, 0, 2, Q("20 mm")))
sketch14.addConstraint(Sketcher.Constraint("DistanceX", 1, 2, 1, 1, Q("6.65 mm")))
sketch14.addConstraint(Sketcher.Constraint("DistanceX", 0, 2, -1, 1, Q("21.314132 mm")))
pocket8 = doc.addObject("PartDesign::Pocket", "Pocket007")
body.addObject(pocket8)
pocket8.Profile = sketch14
pocket8.Length = 44
pocket8.Reversed = True

sketch15 = doc.addObject("Sketcher::SketchObject", "Sketch014")
body.addObject(sketch15)
sketch15.AttachmentSupport = (doc.XY_Plane, [""])
sketch15.MapMode = "FlatFace"
sketch15.AttachmentOffset = App.Placement(App.Vector(0, 0, 12), App.Rotation())
sketch15.addGeometry(Part.LineSegment(App.Vector(-21.314132, 7.277608, 0), App.Vector(-21.314132, -33.290426, 0)), False)
sketch15.addGeometry(Part.LineSegment(App.Vector(-21.314132, -33.290426, 0), App.Vector(-20.377746, -33.290426, 0)), False)
sketch15.addGeometry(Part.LineSegment(App.Vector(-20.377746, -33.290426, 0), App.Vector(-20.377746, 7.277608, 0)), False)
sketch15.addGeometry(Part.LineSegment(App.Vector(-20.377746, 7.277608, 0), App.Vector(-21.314132, 7.277608, 0)), False)
sketch15.addConstraint(Sketcher.Constraint("Coincident", 0, 2, 1, 1))
sketch15.addConstraint(Sketcher.Constraint("Coincident", 1, 2, 2, 1))
sketch15.addConstraint(Sketcher.Constraint("Coincident", 2, 2, 3, 1))
sketch15.addConstraint(Sketcher.Constraint("Coincident", 3, 2, 0, 1))
sketch15.addConstraint(Sketcher.Constraint("Vertical", 0))
sketch15.addConstraint(Sketcher.Constraint("Horizontal", 1))
sketch15.addConstraint(Sketcher.Constraint("Vertical", 2))
sketch15.addConstraint(Sketcher.Constraint("Horizontal", 3))
sketch15.addConstraint(Sketcher.Constraint("DistanceX", 1, 1, 1, 2, Q("0.936386 mm")))
sketch15.addConstraint(Sketcher.Constraint("DistanceY", 0, 2, 0, 1, Q("40.568034 mm")))
sketch15.addConstraint(Sketcher.Constraint("DistanceY", -1, 1, 2, 2, Q("7.277608 mm")))
sketch15.addConstraint(Sketcher.Constraint("DistanceX", 0, 2, -1, 1, Q("21.314132 mm")))
pocket9 = doc.addObject("PartDesign::Pocket", "Pocket008")
body.addObject(pocket9)
pocket9.Profile = sketch15
pocket9.Length = 4

sketch16 = doc.addObject("Sketcher::SketchObject", "Sketch015")
body.addObject(sketch16)
sketch16.AttachmentSupport = (doc.YZ_Plane, [""])
sketch16.MapMode = "FlatFace"
sketch16.AttachmentOffset = App.Placement(App.Vector(0, 0, -17.614132), App.Rotation())
sketch16.addGeometry(Part.LineSegment(App.Vector(-19.173188, 2, 0), App.Vector(-7.007663, 2, 0)), False)
sketch16.addGeometry(Part.ArcOfCircle(Part.Circle(App.Vector(-13.090426, 20, 0), App.Vector(0, 0, 1), 19), math.radians(-71.328282), math.radians(-39.166711)), False)
sketch16.addGeometry(Part.LineSegment(App.Vector(1.640494, 8, 0), App.Vector(0.640494, 8, 0)), False)
sketch16.addGeometry(Part.ArcOfCircle(Part.Circle(App.Vector(-13.132182, 20.717688, 0), App.Vector(0, 0, 1), 18.746365), math.radians(-70.931135), math.radians(-42.71938)), False)
sketch16.addGeometry(Part.LineSegment(App.Vector(-7.007663, 3, 0), App.Vector(-19.173188, 3, 0)), False)
sketch16.addGeometry(Part.ArcOfCircle(Part.Circle(App.Vector(-14.104427, 19.102768, 0), App.Vector(0, 0, 1), 16.88169), math.radians(-138.876745), math.radians(-107.472739)), False)
sketch16.addGeometry(Part.LineSegment(App.Vector(-26.821345, 8, 0), App.Vector(-27.821345, 8, 0)), False)
sketch16.addGeometry(Part.ArcOfCircle(Part.Circle(App.Vector(-13.090426, 20, 0), App.Vector(0, 0, 1), 19), math.radians(-140.833289), math.radians(-108.671718)), False)
sketch16.addConstraint(Sketcher.Constraint("Coincident", 0, 2, 1, 1))
sketch16.addConstraint(Sketcher.Constraint("Coincident", 1, 2, 2, 1))
sketch16.addConstraint(Sketcher.Constraint("Coincident", 2, 2, 3, 2))
sketch16.addConstraint(Sketcher.Constraint("Coincident", 3, 1, 4, 1))
sketch16.addConstraint(Sketcher.Constraint("Coincident", 4, 2, 5, 2))
sketch16.addConstraint(Sketcher.Constraint("Coincident", 5, 1, 6, 1))
sketch16.addConstraint(Sketcher.Constraint("Coincident", 6, 2, 7, 1))
sketch16.addConstraint(Sketcher.Constraint("Coincident", 7, 2, 0, 1))
sketch16.addConstraint(Sketcher.Constraint("Horizontal", 0))
sketch16.addConstraint(Sketcher.Constraint("Horizontal", 2))
sketch16.addConstraint(Sketcher.Constraint("Horizontal", 4))
sketch16.addConstraint(Sketcher.Constraint("Horizontal", 6))
sketch16.addConstraint(Sketcher.Constraint("Coincident", 7, 3, 1, 3))
sketch16.addConstraint(Sketcher.Constraint("Equal", 1, 7))
sketch16.addConstraint(Sketcher.Constraint("Horizontal", 2, 2, 5, 1))
sketch16.addConstraint(Sketcher.Constraint("Vertical", 0, 2, 3, 1))
sketch16.addConstraint(Sketcher.Constraint("Vertical", 4, 2, 7, 2))
sketch16.addConstraint(Sketcher.Constraint("Equal", 2, 6))
sketch16.addConstraint(Sketcher.Constraint("Radius", 1, Q("19 mm")))
sketch16.addConstraint(Sketcher.Constraint("DistanceX", 2, 2, 2, 1, Q("1 mm")))
sketch16.addConstraint(Sketcher.Constraint("DistanceY", -1, 1, 1, 3, Q("20 mm")))
sketch16.addConstraint(Sketcher.Constraint("DistanceY", -1, 1, 0, 2, Q("2 mm")))
sketch16.addConstraint(Sketcher.Constraint("DistanceY", -1, 1, 1, 2, Q("8 mm")))
sketch16.addConstraint(Sketcher.Constraint("DistanceY", -1, 1, 3, 1, Q("3 mm")))
sketch16.addConstraint(Sketcher.Constraint("Radius", 5, Q("16.88169 mm")))
sketch16.addConstraint(Sketcher.Constraint("Radius", 3, Q("18.746365 mm")))
sketch16.addConstraint(Sketcher.Constraint("DistanceX", 4, 2, -1, 1, Q("19.173188 mm")))
pad7 = doc.addObject("PartDesign::Pad", "Pad006")
body.addObject(pad7)
pad7.Profile = sketch16
pad7.Length = 9.2

sketch17 = doc.addObject("Sketcher::SketchObject", "Sketch016")
body.addObject(sketch17)
sketch17.AttachmentSupport = (doc.YZ_Plane, [""])
sketch17.MapMode = "FlatFace"
sketch17.AttachmentOffset = App.Placement(App.Vector(0, 0, -21.314132), App.Rotation())
sketch17.addGeometry(Part.LineSegment(App.Vector(-33.222392, 12, 0), App.Vector(-33.45846, 12, 0)), False)
sketch17.addGeometry(Part.LineSegment(App.Vector(-33.45846, 12, 0), App.Vector(-33.45846, 8, 0)), False)
sketch17.addGeometry(Part.LineSegment(App.Vector(-33.45846, 8, 0), App.Vector(-33.222392, 8, 0)), False)
sketch17.addGeometry(Part.LineSegment(App.Vector(-33.222392, 8, 0), App.Vector(-33.222392, 12, 0)), False)
sketch17.addGeometry(Part.LineSegment(App.Vector(7.277608, 12, 0), App.Vector(7.027608, 12, 0)), False)
sketch17.addGeometry(Part.LineSegment(App.Vector(7.027608, 12, 0), App.Vector(7.027608, 8, 0)), False)
sketch17.addGeometry(Part.LineSegment(App.Vector(7.027608, 8, 0), App.Vector(7.277608, 8, 0)), False)
sketch17.addGeometry(Part.LineSegment(App.Vector(7.277608, 8, 0), App.Vector(7.277608, 12, 0)), False)
sketch17.addConstraint(Sketcher.Constraint("Coincident", 0, 2, 1, 1))
sketch17.addConstraint(Sketcher.Constraint("Coincident", 1, 2, 2, 1))
sketch17.addConstraint(Sketcher.Constraint("Coincident", 2, 2, 3, 1))
sketch17.addConstraint(Sketcher.Constraint("Coincident", 3, 2, 0, 1))
sketch17.addConstraint(Sketcher.Constraint("Coincident", 4, 2, 5, 1))
sketch17.addConstraint(Sketcher.Constraint("Coincident", 5, 2, 6, 1))
sketch17.addConstraint(Sketcher.Constraint("Coincident", 6, 2, 7, 1))
sketch17.addConstraint(Sketcher.Constraint("Coincident", 7, 2, 4, 1))
sketch17.addConstraint(Sketcher.Constraint("Horizontal", 0))
sketch17.addConstraint(Sketcher.Constraint("Vertical", 1))
sketch17.addConstraint(Sketcher.Constraint("Horizontal", 2))
sketch17.addConstraint(Sketcher.Constraint("Vertical", 3))
sketch17.addConstraint(Sketcher.Constraint("Horizontal", 4))
sketch17.addConstraint(Sketcher.Constraint("Vertical", 5))
sketch17.addConstraint(Sketcher.Constraint("Horizontal", 6))
sketch17.addConstraint(Sketcher.Constraint("Vertical", 7))
sketch17.addConstraint(Sketcher.Constraint("Horizontal", 3, 2, 4, 2))
sketch17.addConstraint(Sketcher.Constraint("Horizontal", 2, 2, 5, 2))
sketch17.addConstraint(Sketcher.Constraint("DistanceY", 1, 2, 1, 1, Q("4 mm")))
sketch17.addConstraint(Sketcher.Constraint("DistanceY", -1, 1, 0, 2, Q("12 mm")))
sketch17.addConstraint(Sketcher.Constraint("DistanceX", 4, 2, 4, 1, Q("0.25 mm")))
sketch17.addConstraint(Sketcher.Constraint("DistanceX", 2, 2, 6, 2, Q("40.5 mm")))
sketch17.addConstraint(Sketcher.Constraint("DistanceX", 0, 2, 0, 1, Q("0.236068 mm")))
sketch17.addConstraint(Sketcher.Constraint("DistanceX", 0, 2, -1, 1, Q("33.45846 mm")))
pad8 = doc.addObject("PartDesign::Pad", "Pad007")
body.addObject(pad8)
pad8.Profile = sketch17
pad8.Length = 12.9

sketch18 = doc.addObject("Sketcher::SketchObject", "Sketch017")
body.addObject(sketch18)
sketch18.AttachmentSupport = (doc.YZ_Plane, [""])
sketch18.MapMode = "FlatFace"
sketch18.AttachmentOffset = App.Placement(App.Vector(0, 0, -8.414132), App.Rotation())
sketch18.addGeometry(Part.LineSegment(App.Vector(-26.821345, 12, 0), App.Vector(-33.222392, 12, 0)), False)
sketch18.addGeometry(Part.LineSegment(App.Vector(-33.222392, 12, 0), App.Vector(-33.222392, 8, 0)), False)
sketch18.addGeometry(Part.LineSegment(App.Vector(-33.222392, 8, 0), App.Vector(-26.821345, 8, 0)), False)
sketch18.addGeometry(Part.LineSegment(App.Vector(-26.821345, 8, 0), App.Vector(-26.821345, 12, 0)), False)
sketch18.addGeometry(Part.LineSegment(App.Vector(7.027608, 12, 0), App.Vector(0.640494, 12, 0)), False)
sketch18.addGeometry(Part.LineSegment(App.Vector(0.640494, 12, 0), App.Vector(0.640494, 8, 0)), False)
sketch18.addGeometry(Part.LineSegment(App.Vector(0.640494, 8, 0), App.Vector(7.027608, 8, 0)), False)
sketch18.addGeometry(Part.LineSegment(App.Vector(7.027608, 8, 0), App.Vector(7.027608, 12, 0)), False)
sketch18.addConstraint(Sketcher.Constraint("Coincident", 0, 2, 1, 1))
sketch18.addConstraint(Sketcher.Constraint("Coincident", 1, 2, 2, 1))
sketch18.addConstraint(Sketcher.Constraint("Coincident", 2, 2, 3, 1))
sketch18.addConstraint(Sketcher.Constraint("Coincident", 3, 2, 0, 1))
sketch18.addConstraint(Sketcher.Constraint("Coincident", 4, 2, 5, 1))
sketch18.addConstraint(Sketcher.Constraint("Coincident", 5, 2, 6, 1))
sketch18.addConstraint(Sketcher.Constraint("Coincident", 6, 2, 7, 1))
sketch18.addConstraint(Sketcher.Constraint("Coincident", 7, 2, 4, 1))
sketch18.addConstraint(Sketcher.Constraint("Horizontal", 0))
sketch18.addConstraint(Sketcher.Constraint("Vertical", 1))
sketch18.addConstraint(Sketcher.Constraint("Horizontal", 2))
sketch18.addConstraint(Sketcher.Constraint("Vertical", 3))
sketch18.addConstraint(Sketcher.Constraint("Horizontal", 4))
sketch18.addConstraint(Sketcher.Constraint("Vertical", 5))
sketch18.addConstraint(Sketcher.Constraint("Horizontal", 6))
sketch18.addConstraint(Sketcher.Constraint("Vertical", 7))
sketch18.addConstraint(Sketcher.Constraint("Horizontal", 3, 2, 4, 2))
sketch18.addConstraint(Sketcher.Constraint("Horizontal", 2, 2, 5, 2))
sketch18.addConstraint(Sketcher.Constraint("DistanceY", 1, 2, 1, 1, Q("4 mm")))
sketch18.addConstraint(Sketcher.Constraint("DistanceY", -1, 1, 0, 2, Q("12 mm")))
sketch18.addConstraint(Sketcher.Constraint("DistanceX", 1, 2, 6, 2, Q("40.25 mm")))
sketch18.addConstraint(Sketcher.Constraint("DistanceX", 0, 2, 0, 1, Q("6.401046 mm")))
sketch18.addConstraint(Sketcher.Constraint("DistanceX", 4, 2, 4, 1, Q("6.387114 mm")))
sketch18.addConstraint(Sketcher.Constraint("DistanceX", 0, 2, -1, 1, Q("33.222392 mm")))
pad9 = doc.addObject("PartDesign::Pad", "Pad008")
body.addObject(pad9)
pad9.Profile = sketch18
pad9.Length = 1.5
pad9.Reversed = True

sketch19 = doc.addObject("Sketcher::SketchObject", "Sketch018")
body.addObject(sketch19)
sketch19.AttachmentSupport = (doc.XY_Plane, [""])
sketch19.MapMode = "FlatFace"
sketch19.AttachmentOffset = App.Placement(App.Vector(0, 0, 8), App.Rotation())
sketch19.addGeometry(Part.LineSegment(App.Vector(-9.914132, 7.027608, 0), App.Vector(-21.314132, 7.027608, 0)), False)
sketch19.addGeometry(Part.LineSegment(App.Vector(-21.314132, 7.027608, 0), App.Vector(-21.314132, 4.645642, 0)), False)
sketch19.addGeometry(Part.LineSegment(App.Vector(-21.314132, 4.645642, 0), App.Vector(-17.614132, 4.645642, 0)), False)
sketch19.addGeometry(Part.LineSegment(App.Vector(-17.614132, 4.645642, 0), App.Vector(-17.614132, 0.640494, 0)), False)
sketch19.addGeometry(Part.LineSegment(App.Vector(-17.614132, 0.640494, 0), App.Vector(-9.914132, 0.640494, 0)), False)
sketch19.addGeometry(Part.LineSegment(App.Vector(-9.914132, 0.640494, 0), App.Vector(-9.914132, 7.027608, 0)), False)
sketch19.addGeometry(Part.LineSegment(App.Vector(-9.914132, -26.821345, 0), App.Vector(-17.614132, -26.821345, 0)), False)
sketch19.addGeometry(Part.LineSegment(App.Vector(-17.614132, -26.821345, 0), App.Vector(-17.614132, -30.826494, 0)), False)
sketch19.addGeometry(Part.LineSegment(App.Vector(-17.614132, -30.826494, 0), App.Vector(-21.314132, -30.826494, 0)), False)
sketch19.addGeometry(Part.LineSegment(App.Vector(-21.314132, -30.826494, 0), App.Vector(-21.314132, -33.222392, 0)), False)
sketch19.addGeometry(Part.LineSegment(App.Vector(-21.314132, -33.222392, 0), App.Vector(-9.914132, -33.222392, 0)), False)
sketch19.addGeometry(Part.LineSegment(App.Vector(-9.914132, -33.222392, 0), App.Vector(-9.914132, -26.821345, 0)), False)
sketch19.addConstraint(Sketcher.Constraint("Coincident", 0, 2, 1, 1))
sketch19.addConstraint(Sketcher.Constraint("Coincident", 1, 2, 2, 1))
sketch19.addConstraint(Sketcher.Constraint("Coincident", 2, 2, 3, 1))
sketch19.addConstraint(Sketcher.Constraint("Coincident", 3, 2, 4, 1))
sketch19.addConstraint(Sketcher.Constraint("Coincident", 4, 2, 5, 1))
sketch19.addConstraint(Sketcher.Constraint("Coincident", 5, 2, 0, 1))
sketch19.addConstraint(Sketcher.Constraint("Coincident", 6, 2, 7, 1))
sketch19.addConstraint(Sketcher.Constraint("Coincident", 7, 2, 8, 1))
sketch19.addConstraint(Sketcher.Constraint("Coincident", 8, 2, 9, 1))
sketch19.addConstraint(Sketcher.Constraint("Coincident", 9, 2, 10, 1))
sketch19.addConstraint(Sketcher.Constraint("Coincident", 10, 2, 11, 1))
sketch19.addConstraint(Sketcher.Constraint("Coincident", 11, 2, 6, 1))
sketch19.addConstraint(Sketcher.Constraint("Horizontal", 0))
sketch19.addConstraint(Sketcher.Constraint("Vertical", 1))
sketch19.addConstraint(Sketcher.Constraint("Horizontal", 2))
sketch19.addConstraint(Sketcher.Constraint("Vertical", 3))
sketch19.addConstraint(Sketcher.Constraint("Horizontal", 4))
sketch19.addConstraint(Sketcher.Constraint("Vertical", 5))
sketch19.addConstraint(Sketcher.Constraint("Horizontal", 6))
sketch19.addConstraint(Sketcher.Constraint("Vertical", 7))
sketch19.addConstraint(Sketcher.Constraint("Horizontal", 8))
sketch19.addConstraint(Sketcher.Constraint("Vertical", 9))
sketch19.addConstraint(Sketcher.Constraint("Horizontal", 10))
sketch19.addConstraint(Sketcher.Constraint("Vertical", 11))
sketch19.addConstraint(Sketcher.Constraint("Vertical", 3, 2, 6, 2))
sketch19.addConstraint(Sketcher.Constraint("Vertical", 1, 2, 8, 2))
sketch19.addConstraint(Sketcher.Constraint("Vertical", 5, 2, 10, 2))
sketch19.addConstraint(Sketcher.Constraint("Equal", 3, 7))
sketch19.addConstraint(Sketcher.Constraint("DistanceX", 0, 2, 0, 1, Q("11.4 mm")))
sketch19.addConstraint(Sketcher.Constraint("DistanceX", 2, 1, 2, 2, Q("3.7 mm")))
sketch19.addConstraint(Sketcher.Constraint("DistanceY", 9, 2, 9, 1, Q("2.395898 mm")))
sketch19.addConstraint(Sketcher.Constraint("DistanceY", 3, 2, 3, 1, Q("4.005148 mm")))
sketch19.addConstraint(Sketcher.Constraint("DistanceY", 1, 2, 1, 1, Q("2.381966 mm")))
sketch19.addConstraint(Sketcher.Constraint("DistanceY", -1, 1, 0, 2, Q("7.027608 mm")))
sketch19.addConstraint(Sketcher.Constraint("DistanceY", 9, 2, -1, 1, Q("33.222392 mm")))
sketch19.addConstraint(Sketcher.Constraint("DistanceX", 0, 2, -1, 1, Q("21.314132 mm")))
pad10 = doc.addObject("PartDesign::Pad", "Pad009")
body.addObject(pad10)
pad10.Profile = sketch19
pad10.Length = 0.4

sketch20 = doc.addObject("Sketcher::SketchObject", "Sketch019")
body.addObject(sketch20)
sketch20.AttachmentSupport = (doc.XY_Plane, [""])
sketch20.MapMode = "FlatFace"
sketch20.AttachmentOffset = App.Placement(App.Vector(0, 0, 2), App.Rotation())
sketch20.addGeometry(Part.LineSegment(App.Vector(-33.114132, 7.359574, 0), App.Vector(-33.114132, -33.540426, 0)), False)
sketch20.addGeometry(Part.LineSegment(App.Vector(-33.114132, -33.540426, 0), App.Vector(-20.914132, -33.540426, 0)), False)
sketch20.addGeometry(Part.LineSegment(App.Vector(-20.914132, -33.540426, 0), App.Vector(-20.914132, 7.359574, 0)), False)
sketch20.addGeometry(Part.LineSegment(App.Vector(-20.914132, 7.359574, 0), App.Vector(-33.114132, 7.359574, 0)), False)
sketch20.addConstraint(Sketcher.Constraint("Coincident", 0, 2, 1, 1))
sketch20.addConstraint(Sketcher.Constraint("Coincident", 1, 2, 2, 1))
sketch20.addConstraint(Sketcher.Constraint("Coincident", 2, 2, 3, 1))
sketch20.addConstraint(Sketcher.Constraint("Coincident", 3, 2, 0, 1))
sketch20.addConstraint(Sketcher.Constraint("Vertical", 0))
sketch20.addConstraint(Sketcher.Constraint("Horizontal", 1))
sketch20.addConstraint(Sketcher.Constraint("Vertical", 2))
sketch20.addConstraint(Sketcher.Constraint("Horizontal", 3))
sketch20.addConstraint(Sketcher.Constraint("DistanceX", 1, 1, 1, 2, Q("12.2 mm")))
sketch20.addConstraint(Sketcher.Constraint("DistanceY", 0, 2, 0, 1, Q("40.9 mm")))
sketch20.addConstraint(Sketcher.Constraint("DistanceX", 0, 2, -1, 1, Q("33.114132 mm")))
sketch20.addConstraint(Sketcher.Constraint("DistanceY", 0, 2, -1, 1, Q("33.540426 mm")))
pocket10 = doc.addObject("PartDesign::Pocket", "Pocket009")
body.addObject(pocket10)
pocket10.Profile = sketch20
pocket10.Length = 18
pocket10.Reversed = True

doc.recompute()
